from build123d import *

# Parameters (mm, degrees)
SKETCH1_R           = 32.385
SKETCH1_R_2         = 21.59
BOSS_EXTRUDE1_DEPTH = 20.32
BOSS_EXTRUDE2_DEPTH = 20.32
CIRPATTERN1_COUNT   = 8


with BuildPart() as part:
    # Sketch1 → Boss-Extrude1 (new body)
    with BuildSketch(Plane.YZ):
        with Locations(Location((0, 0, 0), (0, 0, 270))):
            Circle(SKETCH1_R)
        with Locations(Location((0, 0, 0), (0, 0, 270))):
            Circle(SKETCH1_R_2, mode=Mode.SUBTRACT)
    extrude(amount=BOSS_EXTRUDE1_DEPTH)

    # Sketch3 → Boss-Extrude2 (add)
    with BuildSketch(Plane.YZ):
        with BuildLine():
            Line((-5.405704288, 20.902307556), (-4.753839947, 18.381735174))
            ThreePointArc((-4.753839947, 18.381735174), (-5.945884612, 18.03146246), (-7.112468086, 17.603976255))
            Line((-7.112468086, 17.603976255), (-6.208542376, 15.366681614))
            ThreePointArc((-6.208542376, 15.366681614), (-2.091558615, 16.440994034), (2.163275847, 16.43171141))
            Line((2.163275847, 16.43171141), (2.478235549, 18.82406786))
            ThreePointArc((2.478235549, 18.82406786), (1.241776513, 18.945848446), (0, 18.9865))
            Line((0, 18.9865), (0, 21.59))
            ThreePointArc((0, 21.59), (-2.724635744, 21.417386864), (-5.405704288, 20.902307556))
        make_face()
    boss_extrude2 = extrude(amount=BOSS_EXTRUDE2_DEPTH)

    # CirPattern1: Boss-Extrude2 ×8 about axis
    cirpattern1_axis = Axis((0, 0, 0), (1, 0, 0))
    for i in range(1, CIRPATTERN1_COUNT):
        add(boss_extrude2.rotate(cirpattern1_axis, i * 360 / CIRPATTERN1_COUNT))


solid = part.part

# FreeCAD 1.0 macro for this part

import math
import FreeCAD as App
import Part
import Sketcher
Q = App.Units.Quantity

doc = App.newDocument("Part")
params = doc.addObject("Spreadsheet::Sheet", "Params")
for row, (alias, value) in enumerate([
    ("sketch1_diameter", "1.7 in"),
    ("sketch1_diameter2", "2.55 in"),
    ("pad1_length", "0.8 in"),
    ("sketch2_radius", "0.85 in"),
    ("pad2_length", "0.8 in"),
], start=1):
    params.set(f"A{row}", alias)
    params.set(f"B{row}", "=" + value)
    params.setAlias(f"B{row}", alias)

body = doc.addObject("PartDesign::Body", "Body")

sketch1 = body.newObject("Sketcher::SketchObject", "Sketch")
sketch1.AttachmentSupport = (doc.getObject("YZ_Plane"), [""])
sketch1.MapMode = "FlatFace"
sketch1.addGeometry([
    Part.Circle(App.Vector(0, 0, 0), App.Vector(0, 0, 1), 32.385),
    Part.Circle(App.Vector(0, 0, 0), App.Vector(0, 0, 1), 21.59),
], False)
sketch1.addConstraint([
    Sketcher.Constraint("Coincident", 0, 3, -1, 1),
    Sketcher.Constraint("Coincident", 1, 3, -1, 1),
    Sketcher.Constraint("Diameter", 1, Q("1.7 in")),
    Sketcher.Constraint("Diameter", 0, Q("2.55 in")),
])
sketch1.setExpression("Constraints[2]", "Params.sketch1_diameter")
sketch1.setExpression("Constraints[3]", "Params.sketch1_diameter2")
pad1 = body.newObject("PartDesign::Pad", "Pad")
pad1.Profile = sketch1
pad1.setExpression("Length", "Params.pad1_length")

sketch2 = body.newObject("Sketcher::SketchObject", "Sketch001")
sketch2.AttachmentSupport = (doc.getObject("YZ_Plane"), [""])
sketch2.MapMode = "FlatFace"
sketch2.addGeometry([
    Part.LineSegment(App.Vector(-5.405704, 20.902308, 0), App.Vector(-4.75384, 18.381735, 0)),
    Part.ArcOfCircle(Part.Circle(App.Vector(0, 0, 0), App.Vector(0, 0, 1), 18.9865), math.radians(104.5), math.radians(112)),
    Part.LineSegment(App.Vector(-7.112468, 17.603976, 0), App.Vector(-6.208542, 15.366682, 0)),
    Part.ArcOfCircle(Part.Circle(App.Vector(0, 0, 0), App.Vector(0, 0, 1), 16.5735), math.radians(82.5), math.radians(112)),
    Part.LineSegment(App.Vector(2.163276, 16.431711, 0), App.Vector(2.478236, 18.824068, 0)),
    Part.ArcOfCircle(Part.Circle(App.Vector(0, 0, 0), App.Vector(0, 0, 1), 18.9865), math.radians(82.5), math.radians(90)),
    Part.LineSegment(App.Vector(0, 18.9865, 0), App.Vector(0, 21.59, 0)),
    Part.ArcOfCircle(Part.Circle(App.Vector(0, 0, 0), App.Vector(0, 0, 1), 21.59), math.radians(90), math.radians(104.5)),
], False)
sketch2.addConstraint([
    Sketcher.Constraint("Coincident", 0, 2, 1, 1),
    Sketcher.Constraint("Coincident", 1, 2, 2, 1),
    Sketcher.Constraint("Coincident", 2, 2, 3, 2),
    Sketcher.Constraint("Coincident", 3, 1, 4, 1),
    Sketcher.Constraint("Coincident", 4, 2, 5, 1),
    Sketcher.Constraint("Coincident", 5, 2, 6, 1),
    Sketcher.Constraint("Coincident", 6, 2, 7, 1),
    Sketcher.Constraint("Coincident", 7, 2, 0, 1),
    Sketcher.Constraint("Vertical", 6),
    Sketcher.Constraint("Coincident", 1, 3, -1, 1),
    Sketcher.Constraint("Coincident", 3, 3, -1, 1),
    Sketcher.Constraint("Coincident", 5, 3, -1, 1),
    Sketcher.Constraint("Coincident", 7, 3, -1, 1),
    Sketcher.Constraint("Equal", 1, 5),
    Sketcher.Constraint("PointOnObject", 5, 2, -2),
    Sketcher.Constraint("Radius", 7, Q("0.85 in")),
    Sketcher.Constraint("Angle", 2, Q("-68 deg")),
    Sketcher.Constraint("Angle", 0, Q("-75.5 deg")),
    Sketcher.Constraint("Angle", 4, Q("82.5 deg")),
    Sketcher.Constraint("Radius", 1, Q("0.7475 in")),
    Sketcher.Constraint("Radius", 3, Q("0.6525 in")),
    Sketcher.Constraint("DistanceX", 0, 2, -1, 1, Q("4.75384 mm")),
    Sketcher.Constraint("DistanceX", 1, 2, -1, 1, Q("7.112468 mm")),
    Sketcher.Constraint("DistanceY", -1, 1, 3, 1, Q("16.431711 mm")),
])
sketch2.setExpression("Constraints[15]", "Params.sketch2_radius")
pad2 = body.newObject("PartDesign::Pad", "Pad001")
pad2.Profile = sketch2
pad2.setExpression("Length", "Params.pad2_length")
doc.recompute()

polarpattern = body.newObject("PartDesign::PolarPattern", "PolarPattern")
polarpattern.Originals = [pad2]
polarpattern.Axis = (doc.getObject("X_Axis"), [""])
polarpattern.Angle = 360
polarpattern.Occurrences = 8
body.Tip = polarpattern

doc.recompute()
